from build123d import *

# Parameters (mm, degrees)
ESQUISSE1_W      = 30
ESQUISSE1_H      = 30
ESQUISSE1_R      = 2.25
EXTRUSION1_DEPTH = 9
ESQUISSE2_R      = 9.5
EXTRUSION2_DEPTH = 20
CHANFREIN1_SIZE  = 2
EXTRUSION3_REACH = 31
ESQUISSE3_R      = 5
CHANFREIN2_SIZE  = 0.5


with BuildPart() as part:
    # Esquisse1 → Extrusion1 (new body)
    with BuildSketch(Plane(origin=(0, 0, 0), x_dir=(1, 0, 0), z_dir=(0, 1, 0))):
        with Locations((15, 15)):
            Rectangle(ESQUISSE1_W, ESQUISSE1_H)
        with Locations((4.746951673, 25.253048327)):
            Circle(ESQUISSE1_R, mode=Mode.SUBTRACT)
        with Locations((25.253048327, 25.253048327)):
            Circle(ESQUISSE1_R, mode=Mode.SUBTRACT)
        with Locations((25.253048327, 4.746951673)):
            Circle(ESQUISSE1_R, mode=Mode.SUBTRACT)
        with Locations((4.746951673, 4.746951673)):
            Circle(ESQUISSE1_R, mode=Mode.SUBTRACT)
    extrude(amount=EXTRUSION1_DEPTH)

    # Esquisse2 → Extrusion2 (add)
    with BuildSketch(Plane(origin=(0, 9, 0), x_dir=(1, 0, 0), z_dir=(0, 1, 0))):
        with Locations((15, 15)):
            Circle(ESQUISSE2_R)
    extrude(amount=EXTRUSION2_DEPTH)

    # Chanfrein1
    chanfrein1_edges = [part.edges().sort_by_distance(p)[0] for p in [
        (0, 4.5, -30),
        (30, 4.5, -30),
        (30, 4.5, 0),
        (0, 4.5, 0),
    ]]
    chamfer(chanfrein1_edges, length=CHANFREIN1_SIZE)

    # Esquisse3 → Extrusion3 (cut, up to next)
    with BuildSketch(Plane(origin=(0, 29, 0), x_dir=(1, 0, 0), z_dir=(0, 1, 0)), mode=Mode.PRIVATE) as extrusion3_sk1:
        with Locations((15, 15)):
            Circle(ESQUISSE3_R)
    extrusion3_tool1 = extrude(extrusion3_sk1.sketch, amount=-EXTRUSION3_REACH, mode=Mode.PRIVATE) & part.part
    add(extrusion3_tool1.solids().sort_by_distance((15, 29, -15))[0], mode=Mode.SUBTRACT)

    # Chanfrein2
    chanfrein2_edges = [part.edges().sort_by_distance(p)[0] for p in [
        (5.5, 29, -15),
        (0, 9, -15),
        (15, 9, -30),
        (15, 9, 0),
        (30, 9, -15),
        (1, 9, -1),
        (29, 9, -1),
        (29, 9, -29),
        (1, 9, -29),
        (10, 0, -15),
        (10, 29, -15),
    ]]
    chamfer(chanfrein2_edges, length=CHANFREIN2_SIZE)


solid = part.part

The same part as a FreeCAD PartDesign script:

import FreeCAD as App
import Part
import Sketcher

V = App.Vector


def edges_at(feature, points):
    """Names of the edges that pass closest to the given points."""
    edges = feature.Shape.Edges
    near = lambda p: min(range(len(edges)), key=lambda i: edges[i].distToShape(Part.Vertex(*p))[0])
    return sorted({f"Edge{near(p) + 1}" for p in points})

doc = App.newDocument("Part")
params = doc.addObject("Spreadsheet::Sheet", "Params")
for row, (alias, value) in enumerate([
    ("sketch1_diameter", "4.5 mm"),
    ("sketch1_width", "30 mm"),
    ("pad1_length", "9 mm"),
    ("sketch2_diameter", "19 mm"),
    ("pad2_length", "20 mm"),
    ("chamfer_size", "2 mm"),
    ("sketch3_diameter", "10 mm"),
    ("chamfer2_size", "0.5 mm"),
], start=1):
    params.set(f"A{row}", alias)
    params.set(f"B{row}", "=" + value)
    params.setAlias(f"B{row}", alias)

body = doc.addObject("PartDesign::Body", "Body")

sketch1 = body.newObject("Sketcher::SketchObject", "Sketch")
sketch1.AttachmentSupport = (doc.getObject("XZ_Plane"), [""])
sketch1.MapMode = "FlatFace"
sketch1.addGeometry([
    Part.LineSegment(V(0, -30, 0), V(0, 0, 0)),
    Part.LineSegment(V(0, 0, 0), V(30, 0, 0)),
    Part.LineSegment(V(30, 0, 0), V(30, -30, 0)),
    Part.LineSegment(V(30, -30, 0), V(0, -30, 0)),
    Part.Circle(V(4.746952, -4.746952, 0), V(0, 0, 1), 2.25),
    Part.Circle(V(25.253048, -4.746952, 0), V(0, 0, 1), 2.25),
    Part.Circle(V(4.746952, -25.253048, 0), V(0, 0, 1), 2.25),
    Part.Circle(V(25.253048, -25.253048, 0), V(0, 0, 1), 2.25),
], False)
sketch1.addConstraint([
    Sketcher.Constraint("Coincident", 0, 2, 1, 1),
    Sketcher.Constraint("Coincident", 1, 2, 2, 1),
    Sketcher.Constraint("Coincident", 2, 2, 3, 1),
    Sketcher.Constraint("Coincident", 3, 2, 0, 1),
    Sketcher.Constraint("Vertical", 0),
    Sketcher.Constraint("Horizontal", 1),
    Sketcher.Constraint("Vertical", 2),
    Sketcher.Constraint("Horizontal", 3),
    Sketcher.Constraint("Coincident", 0, 2, -1, 1),
    Sketcher.Constraint("Equal", 4, 5),
    Sketcher.Constraint("Equal", 5, 6),
    Sketcher.Constraint("Equal", 6, 7),
    Sketcher.Constraint("Horizontal", 4, 3, 5, 3),
    Sketcher.Constraint("Horizontal", 6, 3, 7, 3),
    Sketcher.Constraint("Vertical", 4, 3, 6, 3),
    Sketcher.Constraint("Vertical", 5, 3, 7, 3),
    Sketcher.Constraint("Equal", 3, 0),
    Sketcher.Constraint("Diameter", 4, 4.5),
    Sketcher.Constraint("DistanceX", 1, 1, 1, 2, 30.0),
    Sketcher.Constraint("DistanceX", -1, 1, 4, 3, 4.746952),
    Sketcher.Constraint("DistanceY", 4, 3, -1, 1, 4.746952),
    Sketcher.Constraint("DistanceX", -1, 1, 5, 3, 25.253048),
    Sketcher.Constraint("DistanceY", 6, 3, -1, 1, 25.253048),
])
sketch1.setExpression("Constraints[17]", "Params.sketch1_diameter")
sketch1.setExpression("Constraints[18]", "Params.sketch1_width")
pad1 = body.newObject("PartDesign::Pad", "Pad")
pad1.Profile = sketch1
pad1.setExpression("Length", "Params.pad1_length")
pad1.Reversed = True

sketch2 = body.newObject("Sketcher::SketchObject", "Sketch001")
sketch2.AttachmentSupport = (doc.getObject("XZ_Plane"), [""])
sketch2.MapMode = "FlatFace"
sketch2.AttachmentOffset = App.Placement(V(0, 0, -9), App.Rotation())
sketch2.addGeometry(Part.Circle(V(15, -15, 0), V(0, 0, 1), 9.5), False)
sketch2.addConstraint([
    Sketcher.Constraint("Diameter", 0, 19.0),
    Sketcher.Constraint("DistanceX", -1, 1, 0, 3, 15.0),
    Sketcher.Constraint("DistanceY", 0, 3, -1, 1, 15.0),
])
sketch2.setExpression("Constraints[0]", "Params.sketch2_diameter")
pad2 = body.newObject("PartDesign::Pad", "Pad001")
pad2.Profile = sketch2
pad2.setExpression("Length", "Params.pad2_length")
pad2.Reversed = True
doc.recompute()

chamfer = body.newObject("PartDesign::Chamfer", "Chamfer")
chamfer.Base = (pad2, edges_at(pad2, [
    (0, 4.5, -30),
    (30, 4.5, -30),
    (30, 4.5, 0),
    (0, 4.5, 0),
]))
chamfer.setExpression("Size", "Params.chamfer_size")

sketch3 = body.newObject("Sketcher::SketchObject", "Sketch002")
sketch3.AttachmentSupport = (doc.getObject("XZ_Plane"), [""])
sketch3.MapMode = "FlatFace"
sketch3.AttachmentOffset = App.Placement(V(0, 0, -29), App.Rotation())
sketch3.addGeometry(Part.Circle(V(15, -15, 0), V(0, 0, 1), 5), False)
sketch3.addConstraint([
    Sketcher.Constraint("Diameter", 0, 10.0),
    Sketcher.Constraint("DistanceX", -1, 1, 0, 3, 15.0),
    Sketcher.Constraint("DistanceY", 0, 3, -1, 1, 15.0),
])
sketch3.setExpression("Constraints[0]", "Params.sketch3_diameter")
pocket1 = body.newObject("PartDesign::Pocket", "Pocket")
pocket1.Profile = sketch3
pocket1.Type = "UpToFirst"
pocket1.Reversed = True
doc.recompute()

chamfer2 = body.newObject("PartDesign::Chamfer", "Chamfer001")
chamfer2.Base = (pocket1, edges_at(pocket1, [
    (5.5, 29, -15),
    (0, 9, -15),
    (15, 9, -30),
    (15, 9, 0),
    (30, 9, -15),
    (1, 9, -1),
    (29, 9, -1),
    (29, 9, -29),
    (1, 9, -29),
    (10, 0, -15),
    (10, 29, -15),
]))
chamfer2.setExpression("Size", "Params.chamfer2_size")

doc.recompute()
